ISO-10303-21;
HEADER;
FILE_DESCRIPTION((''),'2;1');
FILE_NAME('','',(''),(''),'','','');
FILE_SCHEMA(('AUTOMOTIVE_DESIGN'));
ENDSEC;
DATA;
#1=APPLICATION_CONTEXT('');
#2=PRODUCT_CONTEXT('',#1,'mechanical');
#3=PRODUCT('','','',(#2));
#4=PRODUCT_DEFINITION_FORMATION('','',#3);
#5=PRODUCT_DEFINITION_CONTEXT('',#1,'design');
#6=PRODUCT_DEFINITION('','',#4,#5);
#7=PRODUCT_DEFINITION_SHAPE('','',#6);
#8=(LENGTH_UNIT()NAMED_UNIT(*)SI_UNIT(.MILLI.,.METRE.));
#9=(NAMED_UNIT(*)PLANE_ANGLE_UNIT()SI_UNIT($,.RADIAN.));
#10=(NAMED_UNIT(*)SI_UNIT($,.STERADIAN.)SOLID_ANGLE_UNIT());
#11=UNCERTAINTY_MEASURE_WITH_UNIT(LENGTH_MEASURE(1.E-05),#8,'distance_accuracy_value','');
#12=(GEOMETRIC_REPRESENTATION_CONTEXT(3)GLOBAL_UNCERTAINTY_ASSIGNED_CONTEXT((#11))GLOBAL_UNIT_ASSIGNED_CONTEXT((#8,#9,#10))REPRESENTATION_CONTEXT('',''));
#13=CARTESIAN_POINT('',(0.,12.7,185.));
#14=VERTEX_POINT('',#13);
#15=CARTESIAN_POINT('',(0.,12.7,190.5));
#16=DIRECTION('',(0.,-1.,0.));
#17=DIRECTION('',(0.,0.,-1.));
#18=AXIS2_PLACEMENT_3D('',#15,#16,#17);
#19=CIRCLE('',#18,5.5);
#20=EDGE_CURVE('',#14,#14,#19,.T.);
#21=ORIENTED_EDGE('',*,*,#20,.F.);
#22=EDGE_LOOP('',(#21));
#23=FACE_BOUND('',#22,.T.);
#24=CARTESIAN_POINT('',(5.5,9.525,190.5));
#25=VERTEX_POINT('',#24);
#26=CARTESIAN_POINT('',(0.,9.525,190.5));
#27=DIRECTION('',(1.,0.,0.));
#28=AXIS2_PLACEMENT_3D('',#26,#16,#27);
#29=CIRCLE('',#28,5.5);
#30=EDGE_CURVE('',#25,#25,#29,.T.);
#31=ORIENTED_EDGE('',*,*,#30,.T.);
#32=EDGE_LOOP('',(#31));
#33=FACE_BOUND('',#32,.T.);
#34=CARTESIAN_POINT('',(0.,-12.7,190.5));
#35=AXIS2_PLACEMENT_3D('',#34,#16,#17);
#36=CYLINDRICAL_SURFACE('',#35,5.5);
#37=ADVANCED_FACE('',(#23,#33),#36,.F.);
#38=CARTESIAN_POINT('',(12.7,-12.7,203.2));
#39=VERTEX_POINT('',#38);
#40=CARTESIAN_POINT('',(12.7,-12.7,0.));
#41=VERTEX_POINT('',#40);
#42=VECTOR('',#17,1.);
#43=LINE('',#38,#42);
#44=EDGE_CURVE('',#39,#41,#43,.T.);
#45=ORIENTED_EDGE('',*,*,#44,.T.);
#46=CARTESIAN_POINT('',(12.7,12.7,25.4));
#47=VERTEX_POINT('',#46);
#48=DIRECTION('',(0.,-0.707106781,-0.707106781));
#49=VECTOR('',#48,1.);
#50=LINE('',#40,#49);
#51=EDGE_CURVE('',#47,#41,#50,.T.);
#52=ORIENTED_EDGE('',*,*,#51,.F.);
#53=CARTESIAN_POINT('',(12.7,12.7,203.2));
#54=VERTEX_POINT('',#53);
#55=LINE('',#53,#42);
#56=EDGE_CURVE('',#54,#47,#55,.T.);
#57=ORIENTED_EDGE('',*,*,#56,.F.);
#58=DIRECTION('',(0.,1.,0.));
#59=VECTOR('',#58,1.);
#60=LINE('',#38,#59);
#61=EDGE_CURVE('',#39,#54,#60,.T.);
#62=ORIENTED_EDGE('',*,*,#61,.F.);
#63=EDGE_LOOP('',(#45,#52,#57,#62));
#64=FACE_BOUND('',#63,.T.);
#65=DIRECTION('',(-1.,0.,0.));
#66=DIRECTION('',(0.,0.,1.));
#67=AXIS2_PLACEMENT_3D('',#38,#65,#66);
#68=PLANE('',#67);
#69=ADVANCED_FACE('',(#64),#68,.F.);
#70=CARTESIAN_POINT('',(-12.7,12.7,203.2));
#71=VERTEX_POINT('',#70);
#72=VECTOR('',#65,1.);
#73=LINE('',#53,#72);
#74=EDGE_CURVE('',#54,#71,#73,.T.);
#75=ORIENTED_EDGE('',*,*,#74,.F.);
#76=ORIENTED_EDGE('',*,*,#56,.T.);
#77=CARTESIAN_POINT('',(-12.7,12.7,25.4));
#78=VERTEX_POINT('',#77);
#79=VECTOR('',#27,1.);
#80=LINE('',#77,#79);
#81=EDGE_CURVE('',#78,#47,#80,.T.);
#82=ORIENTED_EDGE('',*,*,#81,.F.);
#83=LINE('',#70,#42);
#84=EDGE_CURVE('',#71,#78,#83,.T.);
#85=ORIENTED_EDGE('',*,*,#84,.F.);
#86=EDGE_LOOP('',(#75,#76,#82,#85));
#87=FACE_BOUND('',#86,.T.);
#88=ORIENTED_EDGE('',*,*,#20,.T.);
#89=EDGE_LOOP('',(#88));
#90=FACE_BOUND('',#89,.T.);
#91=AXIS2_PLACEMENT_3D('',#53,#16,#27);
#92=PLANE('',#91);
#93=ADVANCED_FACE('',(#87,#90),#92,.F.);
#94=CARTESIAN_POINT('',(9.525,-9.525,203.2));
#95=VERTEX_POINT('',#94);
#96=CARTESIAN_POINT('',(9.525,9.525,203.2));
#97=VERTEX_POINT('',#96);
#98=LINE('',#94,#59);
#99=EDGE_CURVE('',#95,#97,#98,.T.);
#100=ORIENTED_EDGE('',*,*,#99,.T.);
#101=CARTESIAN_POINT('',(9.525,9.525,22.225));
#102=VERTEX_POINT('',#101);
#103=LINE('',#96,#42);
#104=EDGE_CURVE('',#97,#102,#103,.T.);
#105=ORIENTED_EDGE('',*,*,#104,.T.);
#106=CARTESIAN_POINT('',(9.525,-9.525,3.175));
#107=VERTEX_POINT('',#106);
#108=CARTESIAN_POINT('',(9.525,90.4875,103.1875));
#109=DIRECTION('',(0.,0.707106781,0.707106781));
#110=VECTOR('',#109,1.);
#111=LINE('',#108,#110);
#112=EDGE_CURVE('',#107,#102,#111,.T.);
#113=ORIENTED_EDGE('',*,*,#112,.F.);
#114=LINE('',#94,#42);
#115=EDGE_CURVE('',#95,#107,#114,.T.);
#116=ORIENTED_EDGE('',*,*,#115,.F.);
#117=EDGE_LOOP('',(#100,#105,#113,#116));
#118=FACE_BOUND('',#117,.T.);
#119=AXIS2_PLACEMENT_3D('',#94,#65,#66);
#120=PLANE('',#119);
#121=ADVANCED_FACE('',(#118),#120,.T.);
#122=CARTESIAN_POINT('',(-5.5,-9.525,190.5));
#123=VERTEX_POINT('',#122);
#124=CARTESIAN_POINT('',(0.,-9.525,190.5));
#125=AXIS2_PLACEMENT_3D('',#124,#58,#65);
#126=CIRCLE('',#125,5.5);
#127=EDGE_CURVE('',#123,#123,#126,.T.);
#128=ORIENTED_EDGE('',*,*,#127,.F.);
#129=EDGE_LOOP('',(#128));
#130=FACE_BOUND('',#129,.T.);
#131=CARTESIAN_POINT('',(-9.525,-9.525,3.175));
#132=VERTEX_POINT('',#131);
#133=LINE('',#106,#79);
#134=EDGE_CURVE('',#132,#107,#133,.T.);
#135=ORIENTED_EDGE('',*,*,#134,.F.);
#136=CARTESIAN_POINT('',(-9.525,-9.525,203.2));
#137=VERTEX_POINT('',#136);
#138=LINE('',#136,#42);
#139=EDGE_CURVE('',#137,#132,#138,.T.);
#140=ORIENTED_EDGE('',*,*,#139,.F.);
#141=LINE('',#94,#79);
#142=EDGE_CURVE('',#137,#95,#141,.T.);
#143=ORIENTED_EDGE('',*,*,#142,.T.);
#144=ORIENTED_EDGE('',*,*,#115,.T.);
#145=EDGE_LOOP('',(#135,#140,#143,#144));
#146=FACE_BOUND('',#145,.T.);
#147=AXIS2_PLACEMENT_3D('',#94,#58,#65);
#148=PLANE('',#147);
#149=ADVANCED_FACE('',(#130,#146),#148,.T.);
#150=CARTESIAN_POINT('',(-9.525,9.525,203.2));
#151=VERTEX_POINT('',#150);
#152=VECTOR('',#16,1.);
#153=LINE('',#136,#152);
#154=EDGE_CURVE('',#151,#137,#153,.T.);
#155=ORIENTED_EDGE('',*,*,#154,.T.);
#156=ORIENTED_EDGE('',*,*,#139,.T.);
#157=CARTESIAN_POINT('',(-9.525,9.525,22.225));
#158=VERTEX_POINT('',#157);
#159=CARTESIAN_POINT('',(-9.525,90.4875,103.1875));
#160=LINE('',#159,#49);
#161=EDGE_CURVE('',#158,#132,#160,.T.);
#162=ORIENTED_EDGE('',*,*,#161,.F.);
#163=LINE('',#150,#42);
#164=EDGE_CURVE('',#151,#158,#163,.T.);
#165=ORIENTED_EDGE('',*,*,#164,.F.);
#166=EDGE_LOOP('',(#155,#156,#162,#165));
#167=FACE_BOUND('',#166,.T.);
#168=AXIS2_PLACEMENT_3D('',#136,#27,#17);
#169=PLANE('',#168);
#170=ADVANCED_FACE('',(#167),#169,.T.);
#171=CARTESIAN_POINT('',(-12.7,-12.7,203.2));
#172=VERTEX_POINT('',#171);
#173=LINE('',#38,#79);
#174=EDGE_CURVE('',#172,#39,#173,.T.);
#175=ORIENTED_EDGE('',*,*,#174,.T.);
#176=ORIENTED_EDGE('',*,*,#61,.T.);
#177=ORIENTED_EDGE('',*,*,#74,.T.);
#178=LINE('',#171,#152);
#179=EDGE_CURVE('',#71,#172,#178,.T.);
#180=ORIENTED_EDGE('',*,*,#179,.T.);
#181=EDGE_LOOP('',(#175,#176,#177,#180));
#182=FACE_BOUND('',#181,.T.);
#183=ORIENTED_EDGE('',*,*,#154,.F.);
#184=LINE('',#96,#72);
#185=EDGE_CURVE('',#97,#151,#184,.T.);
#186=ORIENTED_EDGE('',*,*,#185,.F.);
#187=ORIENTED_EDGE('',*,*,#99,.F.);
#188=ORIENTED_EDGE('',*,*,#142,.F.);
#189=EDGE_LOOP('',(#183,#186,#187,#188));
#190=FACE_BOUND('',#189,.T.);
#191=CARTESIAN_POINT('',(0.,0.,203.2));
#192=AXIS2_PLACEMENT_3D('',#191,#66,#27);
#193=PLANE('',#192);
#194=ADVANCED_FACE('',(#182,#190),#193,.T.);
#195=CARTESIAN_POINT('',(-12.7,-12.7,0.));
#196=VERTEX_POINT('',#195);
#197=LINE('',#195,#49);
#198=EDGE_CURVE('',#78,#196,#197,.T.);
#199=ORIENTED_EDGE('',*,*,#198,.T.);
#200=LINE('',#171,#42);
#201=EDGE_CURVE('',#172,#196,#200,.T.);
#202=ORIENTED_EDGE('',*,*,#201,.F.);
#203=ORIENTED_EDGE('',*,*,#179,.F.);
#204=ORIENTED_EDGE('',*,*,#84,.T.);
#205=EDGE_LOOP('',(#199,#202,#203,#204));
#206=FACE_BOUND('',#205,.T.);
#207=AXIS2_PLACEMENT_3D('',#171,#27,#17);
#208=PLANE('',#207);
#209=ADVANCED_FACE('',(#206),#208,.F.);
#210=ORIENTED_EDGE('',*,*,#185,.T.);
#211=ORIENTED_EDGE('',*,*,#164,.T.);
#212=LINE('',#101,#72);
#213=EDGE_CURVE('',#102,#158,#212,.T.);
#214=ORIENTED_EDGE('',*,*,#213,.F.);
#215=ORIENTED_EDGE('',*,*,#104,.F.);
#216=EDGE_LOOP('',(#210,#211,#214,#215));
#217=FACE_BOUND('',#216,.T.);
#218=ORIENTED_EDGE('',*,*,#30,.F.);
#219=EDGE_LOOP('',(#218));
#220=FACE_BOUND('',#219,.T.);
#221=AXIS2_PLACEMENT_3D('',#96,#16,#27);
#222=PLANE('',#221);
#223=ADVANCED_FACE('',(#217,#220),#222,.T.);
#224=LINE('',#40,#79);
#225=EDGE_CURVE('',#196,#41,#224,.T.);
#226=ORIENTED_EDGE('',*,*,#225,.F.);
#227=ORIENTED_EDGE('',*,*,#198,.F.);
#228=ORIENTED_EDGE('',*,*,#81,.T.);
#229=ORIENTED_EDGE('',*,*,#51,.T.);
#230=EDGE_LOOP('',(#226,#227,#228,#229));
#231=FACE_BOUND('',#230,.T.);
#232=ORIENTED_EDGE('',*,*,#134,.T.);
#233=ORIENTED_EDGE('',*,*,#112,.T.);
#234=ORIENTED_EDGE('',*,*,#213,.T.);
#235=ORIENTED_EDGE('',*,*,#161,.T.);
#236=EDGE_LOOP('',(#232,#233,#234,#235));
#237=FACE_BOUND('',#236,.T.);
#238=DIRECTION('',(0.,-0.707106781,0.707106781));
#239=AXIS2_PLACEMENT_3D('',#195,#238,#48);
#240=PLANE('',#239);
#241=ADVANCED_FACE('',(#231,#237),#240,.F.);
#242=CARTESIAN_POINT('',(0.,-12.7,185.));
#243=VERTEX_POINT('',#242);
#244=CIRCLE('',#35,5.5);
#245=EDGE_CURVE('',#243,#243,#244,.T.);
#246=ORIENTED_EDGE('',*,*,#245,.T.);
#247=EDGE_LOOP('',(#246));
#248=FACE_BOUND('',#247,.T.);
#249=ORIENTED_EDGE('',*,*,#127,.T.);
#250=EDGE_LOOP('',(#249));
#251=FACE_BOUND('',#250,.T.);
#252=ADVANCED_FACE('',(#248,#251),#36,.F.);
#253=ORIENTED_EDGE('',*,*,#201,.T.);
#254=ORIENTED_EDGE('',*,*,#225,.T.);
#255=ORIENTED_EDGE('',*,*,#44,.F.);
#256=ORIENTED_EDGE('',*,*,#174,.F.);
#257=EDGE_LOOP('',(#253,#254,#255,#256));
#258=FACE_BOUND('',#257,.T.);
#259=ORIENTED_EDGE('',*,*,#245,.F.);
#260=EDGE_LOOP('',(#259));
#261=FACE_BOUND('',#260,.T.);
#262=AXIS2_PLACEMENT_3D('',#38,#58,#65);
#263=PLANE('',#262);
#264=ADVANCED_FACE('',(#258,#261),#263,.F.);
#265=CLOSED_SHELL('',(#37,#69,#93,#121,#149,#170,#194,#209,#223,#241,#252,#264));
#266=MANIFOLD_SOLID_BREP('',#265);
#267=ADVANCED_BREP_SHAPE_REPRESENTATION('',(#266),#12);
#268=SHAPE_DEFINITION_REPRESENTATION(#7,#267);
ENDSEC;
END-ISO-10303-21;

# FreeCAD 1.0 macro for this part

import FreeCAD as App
import Part
import Sketcher

V = App.Vector
Q = App.Units.Quantity

doc = App.newDocument("Part")
body = doc.addObject("PartDesign::Body", "Body")

# Sketch on XY plane
sketch1 = body.newObject("Sketcher::SketchObject", "Sketch")
sketch1.AttachmentSupport = (doc.getObject("XY_Plane"), [""])
sketch1.MapMode = "FlatFace"
sketch1.addGeometry(Part.LineSegment(V(-13, 13, 0), V(-13, -13, 0)), False)
sketch1.addGeometry(Part.LineSegment(V(-13, -13, 0), V(13, -13, 0)), False)
sketch1.addGeometry(Part.LineSegment(V(13, -13, 0), V(13, 13, 0)), False)
sketch1.addGeometry(Part.LineSegment(V(13, 13, 0), V(-13, 13, 0)), False)
sketch1.addGeometry(Part.LineSegment(V(10, -10, 0), V(-10, -10, 0)), False)
sketch1.addGeometry(Part.LineSegment(V(-10, -10, 0), V(-10, 10, 0)), False)
sketch1.addGeometry(Part.LineSegment(V(-10, 10, 0), V(10, 10, 0)), False)
sketch1.addGeometry(Part.LineSegment(V(10, 10, 0), V(10, -10, 0)), False)
sketch1.addConstraint(Sketcher.Constraint("Coincident", 0, 2, 1, 1))
sketch1.addConstraint(Sketcher.Constraint("Coincident", 1, 2, 2, 1))
sketch1.addConstraint(Sketcher.Constraint("Coincident", 2, 2, 3, 1))
sketch1.addConstraint(Sketcher.Constraint("Coincident", 3, 2, 0, 1))
sketch1.addConstraint(Sketcher.Constraint("Coincident", 4, 2, 5, 1))
sketch1.addConstraint(Sketcher.Constraint("Coincident", 5, 2, 6, 1))
sketch1.addConstraint(Sketcher.Constraint("Coincident", 6, 2, 7, 1))
sketch1.addConstraint(Sketcher.Constraint("Coincident", 7, 2, 4, 1))
sketch1.addConstraint(Sketcher.Constraint("Vertical", 0))
sketch1.addConstraint(Sketcher.Constraint("Horizontal", 1))
sketch1.addConstraint(Sketcher.Constraint("Vertical", 2))
sketch1.addConstraint(Sketcher.Constraint("Horizontal", 3))
sketch1.addConstraint(Sketcher.Constraint("Horizontal", 4))
sketch1.addConstraint(Sketcher.Constraint("Vertical", 5))
sketch1.addConstraint(Sketcher.Constraint("Horizontal", 6))
sketch1.addConstraint(Sketcher.Constraint("Vertical", 7))
sketch1.addConstraint(Sketcher.Constraint("Symmetric", 0, 2, 2, 2, -1, 1))
sketch1.addConstraint(Sketcher.Constraint("Symmetric", 4, 2, 6, 2, -1, 1))
sketch1.addConstraint(Sketcher.Constraint("Equal", 3, 0))
sketch1.addConstraint(Sketcher.Constraint("Equal", 6, 5))
sketch1.addConstraint(Sketcher.Constraint("DistanceX", 1, 1, 1, 2, Q("1 in")))
sketch1.addConstraint(Sketcher.Constraint("DistanceX", 4, 2, 4, 1, Q("0.75 in")))
pad1 = body.newObject("PartDesign::Pad", "Pad")
pad1.Profile = sketch1
pad1.Length = Q("8 in")

# Sketch on YZ plane
sketch2 = body.newObject("Sketcher::SketchObject", "Sketch001")
sketch2.AttachmentSupport = (doc.getObject("YZ_Plane"), [""])
sketch2.MapMode = "FlatFace"
sketch2.AttachmentOffset = App.Placement(V(0, 0, 0.5 * 25.4), App.Rotation())
sketch2.addGeometry(Part.LineSegment(V(-13, 0, 0), V(13, 0, 0)), False)
sketch2.addGeometry(Part.LineSegment(V(13, 0, 0), V(13, 25, 0)), False)
sketch2.addGeometry(Part.LineSegment(V(13, 25, 0), V(-13, 0, 0)), False)
sketch2.addConstraint(Sketcher.Constraint("Coincident", 0, 2, 1, 1))
sketch2.addConstraint(Sketcher.Constraint("Coincident", 1, 2, 2, 1))
sketch2.addConstraint(Sketcher.Constraint("Coincident", 2, 2, 0, 1))
sketch2.addConstraint(Sketcher.Constraint("Horizontal", 0))
sketch2.addConstraint(Sketcher.Constraint("Vertical", 1))
sketch2.addConstraint(Sketcher.Constraint("Symmetric", 0, 2, 2, 2, -1, 1))
sketch2.addConstraint(Sketcher.Constraint("Equal", 0, 1))
sketch2.addConstraint(Sketcher.Constraint("DistanceX", 0, 1, 0, 2, Q("1 in")))
pocket1 = body.newObject("PartDesign::Pocket", "Pocket")
pocket1.Profile = sketch2
pocket1.Type = "ThroughAll"

# Sketch on XZ plane
sketch3 = body.newObject("Sketcher::SketchObject", "Sketch002")
sketch3.AttachmentSupport = (doc.getObject("XZ_Plane"), [""])
sketch3.MapMode = "FlatFace"
sketch3.AttachmentOffset = App.Placement(V(0, 0, 0.5 * 25.4), App.Rotation())
sketch3.addGeometry(Part.Circle(V(0, 190, 0), V(0, 0, 1), 6), False)
sketch3.addConstraint(Sketcher.Constraint("PointOnObject", 0, 3, -2))
sketch3.addConstraint(Sketcher.Constraint("DistanceY", -1, 1, 0, 3, Q("7.5 in")))
sketch3.addConstraint(Sketcher.Constraint("Diameter", 0, Q("11 mm")))
doc.recompute()
hole = body.newObject("PartDesign::Hole", "Hole")
hole.Profile = sketch3
hole.ThreadType = "None"
hole.Diameter = 11
hole.DepthType = "ThroughAll"

doc.recompute()
